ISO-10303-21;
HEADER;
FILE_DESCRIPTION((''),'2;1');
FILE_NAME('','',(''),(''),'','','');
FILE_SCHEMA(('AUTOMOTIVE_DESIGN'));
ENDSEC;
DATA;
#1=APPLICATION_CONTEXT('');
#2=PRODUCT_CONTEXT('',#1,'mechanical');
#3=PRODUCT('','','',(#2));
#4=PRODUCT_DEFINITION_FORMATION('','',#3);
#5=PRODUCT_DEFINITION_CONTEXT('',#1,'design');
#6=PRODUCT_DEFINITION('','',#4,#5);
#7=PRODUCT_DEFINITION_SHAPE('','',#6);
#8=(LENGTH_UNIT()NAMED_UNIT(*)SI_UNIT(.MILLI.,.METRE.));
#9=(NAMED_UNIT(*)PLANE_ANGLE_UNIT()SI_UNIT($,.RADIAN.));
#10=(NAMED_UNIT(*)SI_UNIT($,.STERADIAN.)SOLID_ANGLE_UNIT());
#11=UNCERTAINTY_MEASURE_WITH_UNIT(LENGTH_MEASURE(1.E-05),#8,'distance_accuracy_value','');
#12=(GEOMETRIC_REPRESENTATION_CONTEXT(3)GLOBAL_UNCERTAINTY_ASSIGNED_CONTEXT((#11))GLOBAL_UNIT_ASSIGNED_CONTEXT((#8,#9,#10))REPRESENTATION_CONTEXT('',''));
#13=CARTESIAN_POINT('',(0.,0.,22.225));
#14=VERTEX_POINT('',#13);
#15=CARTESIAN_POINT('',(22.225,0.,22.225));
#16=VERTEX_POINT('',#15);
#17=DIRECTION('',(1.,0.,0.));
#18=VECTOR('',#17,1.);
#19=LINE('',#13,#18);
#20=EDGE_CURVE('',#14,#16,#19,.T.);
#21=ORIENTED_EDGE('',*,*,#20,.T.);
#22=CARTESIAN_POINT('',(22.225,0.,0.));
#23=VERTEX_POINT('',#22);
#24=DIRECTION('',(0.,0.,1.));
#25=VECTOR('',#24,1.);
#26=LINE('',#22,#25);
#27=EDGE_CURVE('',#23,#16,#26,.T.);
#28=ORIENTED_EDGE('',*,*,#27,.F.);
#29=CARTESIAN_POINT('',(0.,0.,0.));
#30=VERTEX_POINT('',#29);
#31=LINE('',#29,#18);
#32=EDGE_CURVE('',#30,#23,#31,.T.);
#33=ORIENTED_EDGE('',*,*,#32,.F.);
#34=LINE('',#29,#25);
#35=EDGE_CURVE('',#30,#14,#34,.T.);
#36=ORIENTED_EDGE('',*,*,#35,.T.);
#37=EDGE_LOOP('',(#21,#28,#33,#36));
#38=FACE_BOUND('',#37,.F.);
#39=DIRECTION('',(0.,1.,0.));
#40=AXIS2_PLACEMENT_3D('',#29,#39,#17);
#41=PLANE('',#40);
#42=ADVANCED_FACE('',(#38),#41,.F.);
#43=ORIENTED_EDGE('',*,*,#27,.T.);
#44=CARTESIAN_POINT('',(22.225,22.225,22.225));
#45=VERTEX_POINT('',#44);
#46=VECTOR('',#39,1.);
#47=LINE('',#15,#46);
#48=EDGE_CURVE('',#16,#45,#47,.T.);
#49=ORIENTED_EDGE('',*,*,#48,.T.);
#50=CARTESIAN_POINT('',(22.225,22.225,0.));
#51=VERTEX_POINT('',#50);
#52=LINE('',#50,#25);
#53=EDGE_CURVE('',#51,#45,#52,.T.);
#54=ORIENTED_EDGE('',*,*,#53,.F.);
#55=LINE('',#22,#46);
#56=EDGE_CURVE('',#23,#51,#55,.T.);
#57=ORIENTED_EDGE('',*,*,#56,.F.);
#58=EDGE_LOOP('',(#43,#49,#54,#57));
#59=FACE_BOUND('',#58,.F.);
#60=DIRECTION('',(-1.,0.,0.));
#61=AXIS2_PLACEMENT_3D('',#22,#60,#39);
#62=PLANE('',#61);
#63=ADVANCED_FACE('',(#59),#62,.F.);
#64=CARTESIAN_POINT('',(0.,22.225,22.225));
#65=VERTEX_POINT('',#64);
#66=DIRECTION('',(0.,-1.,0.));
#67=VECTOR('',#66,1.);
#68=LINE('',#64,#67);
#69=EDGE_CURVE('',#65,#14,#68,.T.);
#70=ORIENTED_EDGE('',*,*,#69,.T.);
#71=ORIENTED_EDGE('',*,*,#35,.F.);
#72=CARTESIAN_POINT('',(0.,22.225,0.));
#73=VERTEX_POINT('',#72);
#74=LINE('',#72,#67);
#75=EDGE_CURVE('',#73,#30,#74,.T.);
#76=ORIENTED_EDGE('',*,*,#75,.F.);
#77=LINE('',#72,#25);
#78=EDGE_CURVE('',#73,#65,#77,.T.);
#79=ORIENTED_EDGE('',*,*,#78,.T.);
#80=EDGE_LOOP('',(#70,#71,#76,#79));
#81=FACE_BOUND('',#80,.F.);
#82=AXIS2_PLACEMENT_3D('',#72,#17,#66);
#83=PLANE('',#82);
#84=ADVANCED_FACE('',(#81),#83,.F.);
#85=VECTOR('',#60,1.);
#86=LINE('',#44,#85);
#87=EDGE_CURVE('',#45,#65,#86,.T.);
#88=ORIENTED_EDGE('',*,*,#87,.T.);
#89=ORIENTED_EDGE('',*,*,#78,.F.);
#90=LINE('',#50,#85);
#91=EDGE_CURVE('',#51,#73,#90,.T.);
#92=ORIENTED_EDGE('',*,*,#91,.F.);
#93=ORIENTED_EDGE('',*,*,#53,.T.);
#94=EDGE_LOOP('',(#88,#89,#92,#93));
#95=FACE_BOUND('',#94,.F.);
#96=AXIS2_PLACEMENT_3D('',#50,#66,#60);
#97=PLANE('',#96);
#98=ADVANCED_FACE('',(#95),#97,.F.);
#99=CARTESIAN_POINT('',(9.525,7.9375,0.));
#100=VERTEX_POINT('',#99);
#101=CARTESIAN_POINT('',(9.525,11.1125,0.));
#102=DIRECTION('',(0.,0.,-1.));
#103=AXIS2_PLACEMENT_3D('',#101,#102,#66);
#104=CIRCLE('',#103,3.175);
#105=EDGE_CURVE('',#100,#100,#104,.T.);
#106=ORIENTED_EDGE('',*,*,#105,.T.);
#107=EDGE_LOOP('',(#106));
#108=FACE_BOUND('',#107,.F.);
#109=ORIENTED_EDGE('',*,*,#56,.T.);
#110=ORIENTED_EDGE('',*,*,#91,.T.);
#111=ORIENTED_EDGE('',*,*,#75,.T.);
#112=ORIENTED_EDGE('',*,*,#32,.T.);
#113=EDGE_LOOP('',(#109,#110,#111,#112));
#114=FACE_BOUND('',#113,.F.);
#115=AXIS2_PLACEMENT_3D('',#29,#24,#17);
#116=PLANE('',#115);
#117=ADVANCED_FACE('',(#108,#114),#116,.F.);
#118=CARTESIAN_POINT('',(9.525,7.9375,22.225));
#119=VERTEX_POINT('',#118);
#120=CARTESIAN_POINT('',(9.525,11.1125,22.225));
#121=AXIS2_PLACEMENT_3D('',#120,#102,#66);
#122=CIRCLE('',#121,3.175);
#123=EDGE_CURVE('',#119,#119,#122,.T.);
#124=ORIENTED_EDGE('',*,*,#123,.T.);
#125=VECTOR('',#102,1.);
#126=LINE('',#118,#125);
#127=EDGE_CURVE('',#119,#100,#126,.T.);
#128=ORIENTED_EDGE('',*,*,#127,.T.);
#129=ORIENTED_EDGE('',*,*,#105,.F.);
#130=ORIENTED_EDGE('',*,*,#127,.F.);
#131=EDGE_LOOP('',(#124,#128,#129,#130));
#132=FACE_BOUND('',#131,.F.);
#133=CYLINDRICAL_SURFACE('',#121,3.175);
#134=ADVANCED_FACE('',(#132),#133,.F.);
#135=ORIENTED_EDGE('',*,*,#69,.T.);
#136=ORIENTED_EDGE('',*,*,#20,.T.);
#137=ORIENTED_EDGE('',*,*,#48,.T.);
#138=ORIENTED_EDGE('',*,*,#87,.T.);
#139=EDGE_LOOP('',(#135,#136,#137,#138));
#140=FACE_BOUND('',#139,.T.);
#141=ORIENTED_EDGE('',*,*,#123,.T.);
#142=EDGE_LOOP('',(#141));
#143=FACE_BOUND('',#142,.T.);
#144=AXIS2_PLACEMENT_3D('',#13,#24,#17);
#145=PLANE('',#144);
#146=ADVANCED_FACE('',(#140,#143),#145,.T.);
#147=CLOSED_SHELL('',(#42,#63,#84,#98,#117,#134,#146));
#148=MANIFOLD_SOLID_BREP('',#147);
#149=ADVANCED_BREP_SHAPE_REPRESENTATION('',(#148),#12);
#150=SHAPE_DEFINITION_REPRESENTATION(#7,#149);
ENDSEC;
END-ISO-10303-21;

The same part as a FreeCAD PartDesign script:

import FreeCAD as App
import Part
import Sketcher

V = App.Vector
Q = App.Units.Quantity


def add_polygon(sketch, points):
    """Adds a closed chain of lines whose ends are joined by coincident constraints."""
    first, n = sketch.GeometryCount, len(points)
    for a, b in zip(points, points[1:] + points[:1]):
        sketch.addGeometry(Part.LineSegment(App.Vector(*a, 0), App.Vector(*b, 0)), False)
    for i in range(n):
        sketch.addConstraint(Sketcher.Constraint("Coincident", first + i, 2, first + (i + 1) % n, 1))

doc = App.newDocument("Part")
body = doc.addObject("PartDesign::Body", "Body")

# Sketch on XY plane
sketch1 = body.newObject("Sketcher::SketchObject", "Sketch")
sketch1.AttachmentSupport = (doc.getObject("XY_Plane"), [""])
sketch1.MapMode = "FlatFace"
add_polygon(sketch1, [(0, 22), (0, 0), (22, 0), (22, 22)])  # lines 0-3
sketch1.addConstraint([
    Sketcher.Constraint("Vertical", 0),
    Sketcher.Constraint("Horizontal", 1),
    Sketcher.Constraint("Vertical", 2),
    Sketcher.Constraint("Horizontal", 3),
    Sketcher.Constraint("Coincident", 0, 2, -1, 1),
    Sketcher.Constraint("Equal", 3, 0),
    Sketcher.Constraint("DistanceX", 1, 1, 1, 2, Q("0.875 in")),
])
pad1 = body.newObject("PartDesign::Pad", "Pad")
pad1.Profile = sketch1
pad1.Length = Q("0.875 in")

# Sketch on XY plane
sketch2 = body.newObject("Sketcher::SketchObject", "Sketch001")
sketch2.AttachmentSupport = (doc.getObject("XY_Plane"), [""])
sketch2.MapMode = "FlatFace"
sketch2.AttachmentOffset = App.Placement(V(0, 0, 0.875 * 25.4), App.Rotation())
sketch2.addGeometry(Part.Circle(V(9.5, 11.1, 0), V(0, 0, 1), 3.2), False)
sketch2.addConstraint([
    Sketcher.Constraint("Diameter", 0, Q("0.25 in")),
    Sketcher.Constraint("DistanceX", -1, 1, 0, 3, Q("0.375 in")),
    Sketcher.Constraint("DistanceY", -1, 1, 0, 3, Q("0.4375 in")),
])
doc.recompute()
hole = body.newObject("PartDesign::Hole", "Hole")
hole.Profile = sketch2
hole.ThreadType = "None"
hole.Diameter = Q("0.25 in")
hole.DepthType = "ThroughAll"

doc.recompute()
